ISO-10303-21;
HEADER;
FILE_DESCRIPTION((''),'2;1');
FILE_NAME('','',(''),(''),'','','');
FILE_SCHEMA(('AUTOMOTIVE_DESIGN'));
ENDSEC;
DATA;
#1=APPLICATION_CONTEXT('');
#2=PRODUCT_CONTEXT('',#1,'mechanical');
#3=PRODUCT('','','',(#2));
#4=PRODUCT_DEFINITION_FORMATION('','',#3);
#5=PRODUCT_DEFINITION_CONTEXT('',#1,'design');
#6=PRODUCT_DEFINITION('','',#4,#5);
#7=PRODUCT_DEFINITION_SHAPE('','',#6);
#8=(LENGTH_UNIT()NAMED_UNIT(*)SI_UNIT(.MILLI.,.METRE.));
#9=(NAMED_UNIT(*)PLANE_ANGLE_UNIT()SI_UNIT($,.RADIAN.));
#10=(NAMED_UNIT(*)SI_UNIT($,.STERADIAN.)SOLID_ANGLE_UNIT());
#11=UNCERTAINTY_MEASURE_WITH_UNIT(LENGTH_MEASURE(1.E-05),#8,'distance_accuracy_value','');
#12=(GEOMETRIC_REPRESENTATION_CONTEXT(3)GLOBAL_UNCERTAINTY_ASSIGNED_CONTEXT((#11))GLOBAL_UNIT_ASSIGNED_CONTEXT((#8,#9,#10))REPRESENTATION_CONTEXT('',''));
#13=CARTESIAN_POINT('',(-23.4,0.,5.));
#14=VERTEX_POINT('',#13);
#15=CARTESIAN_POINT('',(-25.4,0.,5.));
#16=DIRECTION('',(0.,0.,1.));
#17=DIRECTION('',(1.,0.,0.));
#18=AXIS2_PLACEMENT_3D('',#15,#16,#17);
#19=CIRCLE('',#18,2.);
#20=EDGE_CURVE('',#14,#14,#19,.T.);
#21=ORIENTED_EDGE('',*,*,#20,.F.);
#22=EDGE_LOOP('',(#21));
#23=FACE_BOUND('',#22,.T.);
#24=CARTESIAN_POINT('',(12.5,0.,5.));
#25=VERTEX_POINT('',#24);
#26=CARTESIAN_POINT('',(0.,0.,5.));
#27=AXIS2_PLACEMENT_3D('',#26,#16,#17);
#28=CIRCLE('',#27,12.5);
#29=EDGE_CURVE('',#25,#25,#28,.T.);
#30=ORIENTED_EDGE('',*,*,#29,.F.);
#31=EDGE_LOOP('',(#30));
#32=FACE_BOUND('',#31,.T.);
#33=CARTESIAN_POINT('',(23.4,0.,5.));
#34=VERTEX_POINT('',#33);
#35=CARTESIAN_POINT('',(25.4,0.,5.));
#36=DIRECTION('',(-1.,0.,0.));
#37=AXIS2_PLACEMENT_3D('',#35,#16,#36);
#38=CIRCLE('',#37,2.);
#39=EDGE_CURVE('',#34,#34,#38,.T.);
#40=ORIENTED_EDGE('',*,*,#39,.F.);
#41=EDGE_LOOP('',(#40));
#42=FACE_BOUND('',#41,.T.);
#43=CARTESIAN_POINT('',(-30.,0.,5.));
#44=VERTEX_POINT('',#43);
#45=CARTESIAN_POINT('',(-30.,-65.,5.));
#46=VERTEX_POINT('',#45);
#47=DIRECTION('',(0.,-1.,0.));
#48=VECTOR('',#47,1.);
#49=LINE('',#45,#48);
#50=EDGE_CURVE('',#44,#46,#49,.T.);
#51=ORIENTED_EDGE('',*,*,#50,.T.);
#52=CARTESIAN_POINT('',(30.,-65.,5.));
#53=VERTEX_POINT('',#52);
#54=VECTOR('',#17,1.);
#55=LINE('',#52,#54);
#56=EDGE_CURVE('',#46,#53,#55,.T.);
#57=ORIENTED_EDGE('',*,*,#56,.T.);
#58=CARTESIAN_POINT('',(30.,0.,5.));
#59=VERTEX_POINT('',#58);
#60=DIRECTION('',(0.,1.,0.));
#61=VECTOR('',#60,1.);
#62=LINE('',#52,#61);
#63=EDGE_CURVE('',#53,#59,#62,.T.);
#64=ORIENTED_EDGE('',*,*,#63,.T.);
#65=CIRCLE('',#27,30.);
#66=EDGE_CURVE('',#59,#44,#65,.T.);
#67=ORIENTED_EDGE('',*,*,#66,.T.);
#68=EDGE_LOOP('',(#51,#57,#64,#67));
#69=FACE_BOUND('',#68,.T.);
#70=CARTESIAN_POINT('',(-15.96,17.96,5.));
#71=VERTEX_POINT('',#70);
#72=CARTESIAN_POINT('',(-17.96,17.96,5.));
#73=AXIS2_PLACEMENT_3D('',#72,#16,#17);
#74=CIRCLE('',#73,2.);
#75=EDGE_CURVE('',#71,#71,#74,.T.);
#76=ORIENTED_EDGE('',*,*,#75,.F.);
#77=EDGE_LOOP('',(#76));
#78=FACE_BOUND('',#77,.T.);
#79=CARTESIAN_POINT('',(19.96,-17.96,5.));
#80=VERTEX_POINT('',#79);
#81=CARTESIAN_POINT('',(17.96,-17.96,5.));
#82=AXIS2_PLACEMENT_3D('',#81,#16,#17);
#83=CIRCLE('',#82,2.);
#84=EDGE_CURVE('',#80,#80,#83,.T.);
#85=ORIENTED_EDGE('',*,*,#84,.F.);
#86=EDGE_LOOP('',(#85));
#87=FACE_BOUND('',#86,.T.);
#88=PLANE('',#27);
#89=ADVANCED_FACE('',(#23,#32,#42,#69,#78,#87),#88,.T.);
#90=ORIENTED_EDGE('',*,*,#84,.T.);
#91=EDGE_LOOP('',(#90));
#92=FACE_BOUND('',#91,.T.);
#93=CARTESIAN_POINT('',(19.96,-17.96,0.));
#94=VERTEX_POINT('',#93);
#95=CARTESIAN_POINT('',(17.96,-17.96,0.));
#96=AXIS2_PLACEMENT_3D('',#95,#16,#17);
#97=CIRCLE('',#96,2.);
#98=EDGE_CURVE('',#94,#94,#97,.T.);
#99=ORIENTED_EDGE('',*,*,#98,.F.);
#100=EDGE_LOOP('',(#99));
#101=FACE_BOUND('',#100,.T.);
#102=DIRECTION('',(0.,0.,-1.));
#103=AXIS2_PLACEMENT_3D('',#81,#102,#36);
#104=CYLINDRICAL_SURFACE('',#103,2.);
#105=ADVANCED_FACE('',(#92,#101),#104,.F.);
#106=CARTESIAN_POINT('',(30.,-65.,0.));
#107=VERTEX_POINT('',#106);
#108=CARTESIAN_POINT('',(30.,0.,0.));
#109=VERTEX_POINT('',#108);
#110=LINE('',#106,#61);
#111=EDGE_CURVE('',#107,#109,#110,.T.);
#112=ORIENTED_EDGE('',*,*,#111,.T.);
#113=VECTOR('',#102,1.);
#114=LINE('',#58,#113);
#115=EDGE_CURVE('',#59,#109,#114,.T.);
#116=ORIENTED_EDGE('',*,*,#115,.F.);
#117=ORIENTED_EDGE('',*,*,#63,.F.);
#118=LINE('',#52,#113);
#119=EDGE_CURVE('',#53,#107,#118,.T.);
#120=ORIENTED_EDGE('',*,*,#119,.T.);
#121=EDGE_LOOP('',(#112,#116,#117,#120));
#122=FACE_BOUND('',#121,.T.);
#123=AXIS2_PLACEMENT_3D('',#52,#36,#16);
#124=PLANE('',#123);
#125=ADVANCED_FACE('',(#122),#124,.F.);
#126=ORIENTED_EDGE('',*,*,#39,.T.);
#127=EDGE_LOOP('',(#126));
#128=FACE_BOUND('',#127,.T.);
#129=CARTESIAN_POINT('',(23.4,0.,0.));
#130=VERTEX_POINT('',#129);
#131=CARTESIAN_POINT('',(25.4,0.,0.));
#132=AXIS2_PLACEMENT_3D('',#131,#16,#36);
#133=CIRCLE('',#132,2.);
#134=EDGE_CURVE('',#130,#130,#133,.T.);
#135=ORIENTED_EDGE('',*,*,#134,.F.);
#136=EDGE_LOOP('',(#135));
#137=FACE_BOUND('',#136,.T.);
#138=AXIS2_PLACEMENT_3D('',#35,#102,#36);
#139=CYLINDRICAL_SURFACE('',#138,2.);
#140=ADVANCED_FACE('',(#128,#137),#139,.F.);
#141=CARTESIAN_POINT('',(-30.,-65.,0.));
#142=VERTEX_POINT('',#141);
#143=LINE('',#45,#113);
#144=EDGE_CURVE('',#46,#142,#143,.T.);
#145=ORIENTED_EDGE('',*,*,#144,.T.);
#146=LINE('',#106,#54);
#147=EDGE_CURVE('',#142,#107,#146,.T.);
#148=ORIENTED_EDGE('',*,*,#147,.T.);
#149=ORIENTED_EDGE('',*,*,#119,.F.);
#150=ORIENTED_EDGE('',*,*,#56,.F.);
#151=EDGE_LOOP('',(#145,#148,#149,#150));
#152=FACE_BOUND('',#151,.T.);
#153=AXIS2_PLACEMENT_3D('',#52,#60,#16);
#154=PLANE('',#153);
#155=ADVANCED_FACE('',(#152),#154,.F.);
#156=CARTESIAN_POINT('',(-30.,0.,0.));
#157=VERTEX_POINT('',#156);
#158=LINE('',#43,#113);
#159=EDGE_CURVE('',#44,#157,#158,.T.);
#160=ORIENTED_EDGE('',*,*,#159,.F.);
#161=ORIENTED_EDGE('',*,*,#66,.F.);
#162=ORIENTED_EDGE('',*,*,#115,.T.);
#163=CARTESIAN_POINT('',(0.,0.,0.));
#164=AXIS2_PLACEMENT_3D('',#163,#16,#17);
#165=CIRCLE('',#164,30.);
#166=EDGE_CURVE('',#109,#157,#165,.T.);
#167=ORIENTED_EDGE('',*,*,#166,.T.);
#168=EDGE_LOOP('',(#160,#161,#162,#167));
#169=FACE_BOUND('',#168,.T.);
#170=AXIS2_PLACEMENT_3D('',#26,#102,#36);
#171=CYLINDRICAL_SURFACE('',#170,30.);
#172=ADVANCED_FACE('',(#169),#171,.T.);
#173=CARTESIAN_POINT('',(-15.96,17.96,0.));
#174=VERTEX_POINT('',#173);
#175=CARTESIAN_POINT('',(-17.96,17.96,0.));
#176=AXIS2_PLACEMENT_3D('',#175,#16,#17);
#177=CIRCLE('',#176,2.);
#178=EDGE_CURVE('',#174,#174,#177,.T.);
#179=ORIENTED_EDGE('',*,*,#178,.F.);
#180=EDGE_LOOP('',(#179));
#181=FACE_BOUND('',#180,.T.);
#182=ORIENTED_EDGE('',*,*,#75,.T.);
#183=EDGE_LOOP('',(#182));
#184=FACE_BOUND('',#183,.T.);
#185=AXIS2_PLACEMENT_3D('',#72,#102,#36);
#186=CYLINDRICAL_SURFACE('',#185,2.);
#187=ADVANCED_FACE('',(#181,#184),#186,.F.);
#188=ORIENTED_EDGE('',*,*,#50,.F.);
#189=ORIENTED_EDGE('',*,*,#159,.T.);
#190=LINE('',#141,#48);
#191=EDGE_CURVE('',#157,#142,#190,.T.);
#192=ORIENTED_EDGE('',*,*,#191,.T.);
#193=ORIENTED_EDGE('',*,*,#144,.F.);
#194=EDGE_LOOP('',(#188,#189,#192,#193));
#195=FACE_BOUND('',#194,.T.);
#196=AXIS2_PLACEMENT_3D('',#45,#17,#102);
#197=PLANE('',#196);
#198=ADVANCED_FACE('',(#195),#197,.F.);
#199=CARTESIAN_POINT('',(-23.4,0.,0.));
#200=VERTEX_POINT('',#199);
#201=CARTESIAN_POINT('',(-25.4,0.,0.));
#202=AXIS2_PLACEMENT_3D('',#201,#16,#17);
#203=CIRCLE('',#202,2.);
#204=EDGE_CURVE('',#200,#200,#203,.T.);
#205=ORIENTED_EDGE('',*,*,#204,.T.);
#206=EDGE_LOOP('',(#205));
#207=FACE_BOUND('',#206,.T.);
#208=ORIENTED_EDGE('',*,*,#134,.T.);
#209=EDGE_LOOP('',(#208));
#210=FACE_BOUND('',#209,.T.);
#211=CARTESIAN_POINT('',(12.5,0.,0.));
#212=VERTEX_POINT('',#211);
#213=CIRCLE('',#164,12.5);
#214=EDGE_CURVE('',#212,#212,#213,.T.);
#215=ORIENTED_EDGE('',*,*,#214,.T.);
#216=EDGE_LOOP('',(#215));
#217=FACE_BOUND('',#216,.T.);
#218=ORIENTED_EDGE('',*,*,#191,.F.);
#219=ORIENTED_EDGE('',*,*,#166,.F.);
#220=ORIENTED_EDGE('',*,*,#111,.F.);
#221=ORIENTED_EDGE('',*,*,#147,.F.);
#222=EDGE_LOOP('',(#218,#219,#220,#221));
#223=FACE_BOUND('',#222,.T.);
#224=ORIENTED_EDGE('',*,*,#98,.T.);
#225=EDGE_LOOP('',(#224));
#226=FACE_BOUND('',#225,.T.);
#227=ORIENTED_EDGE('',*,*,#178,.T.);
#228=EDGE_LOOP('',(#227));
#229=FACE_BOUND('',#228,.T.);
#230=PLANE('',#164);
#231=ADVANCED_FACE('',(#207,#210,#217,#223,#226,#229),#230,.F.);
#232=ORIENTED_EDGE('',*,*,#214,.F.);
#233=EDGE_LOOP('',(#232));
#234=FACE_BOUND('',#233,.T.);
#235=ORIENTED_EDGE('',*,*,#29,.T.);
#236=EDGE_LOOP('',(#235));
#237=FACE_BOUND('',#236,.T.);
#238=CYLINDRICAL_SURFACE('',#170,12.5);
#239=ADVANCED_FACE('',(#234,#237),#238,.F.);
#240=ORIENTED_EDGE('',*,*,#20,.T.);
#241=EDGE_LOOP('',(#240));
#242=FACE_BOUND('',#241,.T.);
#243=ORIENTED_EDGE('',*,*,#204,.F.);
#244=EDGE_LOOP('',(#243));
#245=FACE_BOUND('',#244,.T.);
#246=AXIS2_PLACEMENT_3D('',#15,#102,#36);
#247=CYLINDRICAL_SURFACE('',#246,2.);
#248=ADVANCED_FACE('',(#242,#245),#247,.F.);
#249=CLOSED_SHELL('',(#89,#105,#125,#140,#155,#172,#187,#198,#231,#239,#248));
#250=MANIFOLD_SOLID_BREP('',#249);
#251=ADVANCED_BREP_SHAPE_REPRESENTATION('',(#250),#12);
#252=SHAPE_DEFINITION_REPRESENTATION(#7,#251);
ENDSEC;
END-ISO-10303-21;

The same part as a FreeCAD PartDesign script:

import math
import FreeCAD as App
import Part
import Sketcher

V = App.Vector

doc = App.newDocument("Part")
body = doc.addObject("PartDesign::Body", "Body")

# Sketch on XY plane
sketch1 = doc.addObject("Sketcher::SketchObject", "Sketch")
body.addObject(sketch1)
sketch1.AttachmentSupport = (doc.XY_Plane, [""])
sketch1.MapMode = "FlatFace"
sketch1.addGeometry([
    Part.LineSegment(V(-30, -65, 0), V(30, -65, 0)),  # 0
    Part.LineSegment(V(30, -65, 0), V(30, 0, 0)),  # 1
    Part.ArcOfCircle(Part.Circle(V(0, 0, 0), V(0, 0, 1), 30), math.radians(0), math.radians(180)),  # 2
    Part.LineSegment(V(-30, 0, 0), V(-30, -65, 0)),  # 3
    Part.Circle(V(17.96, -17.96, 0), V(0, 0, 1), 2),  # 4
    Part.Circle(V(25.4, 0, 0), V(0, 0, 1), 2),  # 5
    Part.Circle(V(0, 0, 0), V(0, 0, 1), 12.5),  # 6
    Part.Circle(V(-25.4, 0, 0), V(0, 0, 1), 2),  # 7
    Part.Circle(V(-17.96, 17.96, 0), V(0, 0, 1), 2),  # 8
], False)
sketch1.addConstraint([
    Sketcher.Constraint("Coincident", 0, 2, 1, 1),
    Sketcher.Constraint("Tangent", 1, 2, 2, 1),
    Sketcher.Constraint("Tangent", 2, 2, 3, 1),
    Sketcher.Constraint("Coincident", 3, 2, 0, 1),
    Sketcher.Constraint("Horizontal", 0),
    Sketcher.Constraint("Vertical", 1),
    Sketcher.Constraint("Vertical", 3),
    Sketcher.Constraint("Coincident", 2, 3, -1, 1),
    Sketcher.Constraint("Coincident", 6, 3, -1, 1),
    Sketcher.Constraint("Equal", 4, 5),
    Sketcher.Constraint("Equal", 5, 7),
    Sketcher.Constraint("Equal", 7, 8),
    Sketcher.Constraint("Symmetric", 5, 3, 7, 3, -1, 1),
    Sketcher.Constraint("Symmetric", 4, 3, 8, 3, -1, 1),
    Sketcher.Constraint("PointOnObject", 5, 3, -1),
    Sketcher.Constraint("Diameter", 4, 4.0),
    Sketcher.Constraint("Diameter", 6, 25.0),
    Sketcher.Constraint("Radius", 2, 30.0),
    Sketcher.Constraint("DistanceY", 1, 1, 1, 2, 65.0),
    Sketcher.Constraint("DistanceX", -1, 1, 5, 3, 25.4),
    Sketcher.Constraint("DistanceX", -1, 1, 4, 3, 17.96),
    Sketcher.Constraint("DistanceY", 4, 3, -1, 1, 17.96),
])
pad1 = doc.addObject("PartDesign::Pad", "Pad")
body.addObject(pad1)
pad1.Profile = sketch1
pad1.Length = 5

doc.recompute()
